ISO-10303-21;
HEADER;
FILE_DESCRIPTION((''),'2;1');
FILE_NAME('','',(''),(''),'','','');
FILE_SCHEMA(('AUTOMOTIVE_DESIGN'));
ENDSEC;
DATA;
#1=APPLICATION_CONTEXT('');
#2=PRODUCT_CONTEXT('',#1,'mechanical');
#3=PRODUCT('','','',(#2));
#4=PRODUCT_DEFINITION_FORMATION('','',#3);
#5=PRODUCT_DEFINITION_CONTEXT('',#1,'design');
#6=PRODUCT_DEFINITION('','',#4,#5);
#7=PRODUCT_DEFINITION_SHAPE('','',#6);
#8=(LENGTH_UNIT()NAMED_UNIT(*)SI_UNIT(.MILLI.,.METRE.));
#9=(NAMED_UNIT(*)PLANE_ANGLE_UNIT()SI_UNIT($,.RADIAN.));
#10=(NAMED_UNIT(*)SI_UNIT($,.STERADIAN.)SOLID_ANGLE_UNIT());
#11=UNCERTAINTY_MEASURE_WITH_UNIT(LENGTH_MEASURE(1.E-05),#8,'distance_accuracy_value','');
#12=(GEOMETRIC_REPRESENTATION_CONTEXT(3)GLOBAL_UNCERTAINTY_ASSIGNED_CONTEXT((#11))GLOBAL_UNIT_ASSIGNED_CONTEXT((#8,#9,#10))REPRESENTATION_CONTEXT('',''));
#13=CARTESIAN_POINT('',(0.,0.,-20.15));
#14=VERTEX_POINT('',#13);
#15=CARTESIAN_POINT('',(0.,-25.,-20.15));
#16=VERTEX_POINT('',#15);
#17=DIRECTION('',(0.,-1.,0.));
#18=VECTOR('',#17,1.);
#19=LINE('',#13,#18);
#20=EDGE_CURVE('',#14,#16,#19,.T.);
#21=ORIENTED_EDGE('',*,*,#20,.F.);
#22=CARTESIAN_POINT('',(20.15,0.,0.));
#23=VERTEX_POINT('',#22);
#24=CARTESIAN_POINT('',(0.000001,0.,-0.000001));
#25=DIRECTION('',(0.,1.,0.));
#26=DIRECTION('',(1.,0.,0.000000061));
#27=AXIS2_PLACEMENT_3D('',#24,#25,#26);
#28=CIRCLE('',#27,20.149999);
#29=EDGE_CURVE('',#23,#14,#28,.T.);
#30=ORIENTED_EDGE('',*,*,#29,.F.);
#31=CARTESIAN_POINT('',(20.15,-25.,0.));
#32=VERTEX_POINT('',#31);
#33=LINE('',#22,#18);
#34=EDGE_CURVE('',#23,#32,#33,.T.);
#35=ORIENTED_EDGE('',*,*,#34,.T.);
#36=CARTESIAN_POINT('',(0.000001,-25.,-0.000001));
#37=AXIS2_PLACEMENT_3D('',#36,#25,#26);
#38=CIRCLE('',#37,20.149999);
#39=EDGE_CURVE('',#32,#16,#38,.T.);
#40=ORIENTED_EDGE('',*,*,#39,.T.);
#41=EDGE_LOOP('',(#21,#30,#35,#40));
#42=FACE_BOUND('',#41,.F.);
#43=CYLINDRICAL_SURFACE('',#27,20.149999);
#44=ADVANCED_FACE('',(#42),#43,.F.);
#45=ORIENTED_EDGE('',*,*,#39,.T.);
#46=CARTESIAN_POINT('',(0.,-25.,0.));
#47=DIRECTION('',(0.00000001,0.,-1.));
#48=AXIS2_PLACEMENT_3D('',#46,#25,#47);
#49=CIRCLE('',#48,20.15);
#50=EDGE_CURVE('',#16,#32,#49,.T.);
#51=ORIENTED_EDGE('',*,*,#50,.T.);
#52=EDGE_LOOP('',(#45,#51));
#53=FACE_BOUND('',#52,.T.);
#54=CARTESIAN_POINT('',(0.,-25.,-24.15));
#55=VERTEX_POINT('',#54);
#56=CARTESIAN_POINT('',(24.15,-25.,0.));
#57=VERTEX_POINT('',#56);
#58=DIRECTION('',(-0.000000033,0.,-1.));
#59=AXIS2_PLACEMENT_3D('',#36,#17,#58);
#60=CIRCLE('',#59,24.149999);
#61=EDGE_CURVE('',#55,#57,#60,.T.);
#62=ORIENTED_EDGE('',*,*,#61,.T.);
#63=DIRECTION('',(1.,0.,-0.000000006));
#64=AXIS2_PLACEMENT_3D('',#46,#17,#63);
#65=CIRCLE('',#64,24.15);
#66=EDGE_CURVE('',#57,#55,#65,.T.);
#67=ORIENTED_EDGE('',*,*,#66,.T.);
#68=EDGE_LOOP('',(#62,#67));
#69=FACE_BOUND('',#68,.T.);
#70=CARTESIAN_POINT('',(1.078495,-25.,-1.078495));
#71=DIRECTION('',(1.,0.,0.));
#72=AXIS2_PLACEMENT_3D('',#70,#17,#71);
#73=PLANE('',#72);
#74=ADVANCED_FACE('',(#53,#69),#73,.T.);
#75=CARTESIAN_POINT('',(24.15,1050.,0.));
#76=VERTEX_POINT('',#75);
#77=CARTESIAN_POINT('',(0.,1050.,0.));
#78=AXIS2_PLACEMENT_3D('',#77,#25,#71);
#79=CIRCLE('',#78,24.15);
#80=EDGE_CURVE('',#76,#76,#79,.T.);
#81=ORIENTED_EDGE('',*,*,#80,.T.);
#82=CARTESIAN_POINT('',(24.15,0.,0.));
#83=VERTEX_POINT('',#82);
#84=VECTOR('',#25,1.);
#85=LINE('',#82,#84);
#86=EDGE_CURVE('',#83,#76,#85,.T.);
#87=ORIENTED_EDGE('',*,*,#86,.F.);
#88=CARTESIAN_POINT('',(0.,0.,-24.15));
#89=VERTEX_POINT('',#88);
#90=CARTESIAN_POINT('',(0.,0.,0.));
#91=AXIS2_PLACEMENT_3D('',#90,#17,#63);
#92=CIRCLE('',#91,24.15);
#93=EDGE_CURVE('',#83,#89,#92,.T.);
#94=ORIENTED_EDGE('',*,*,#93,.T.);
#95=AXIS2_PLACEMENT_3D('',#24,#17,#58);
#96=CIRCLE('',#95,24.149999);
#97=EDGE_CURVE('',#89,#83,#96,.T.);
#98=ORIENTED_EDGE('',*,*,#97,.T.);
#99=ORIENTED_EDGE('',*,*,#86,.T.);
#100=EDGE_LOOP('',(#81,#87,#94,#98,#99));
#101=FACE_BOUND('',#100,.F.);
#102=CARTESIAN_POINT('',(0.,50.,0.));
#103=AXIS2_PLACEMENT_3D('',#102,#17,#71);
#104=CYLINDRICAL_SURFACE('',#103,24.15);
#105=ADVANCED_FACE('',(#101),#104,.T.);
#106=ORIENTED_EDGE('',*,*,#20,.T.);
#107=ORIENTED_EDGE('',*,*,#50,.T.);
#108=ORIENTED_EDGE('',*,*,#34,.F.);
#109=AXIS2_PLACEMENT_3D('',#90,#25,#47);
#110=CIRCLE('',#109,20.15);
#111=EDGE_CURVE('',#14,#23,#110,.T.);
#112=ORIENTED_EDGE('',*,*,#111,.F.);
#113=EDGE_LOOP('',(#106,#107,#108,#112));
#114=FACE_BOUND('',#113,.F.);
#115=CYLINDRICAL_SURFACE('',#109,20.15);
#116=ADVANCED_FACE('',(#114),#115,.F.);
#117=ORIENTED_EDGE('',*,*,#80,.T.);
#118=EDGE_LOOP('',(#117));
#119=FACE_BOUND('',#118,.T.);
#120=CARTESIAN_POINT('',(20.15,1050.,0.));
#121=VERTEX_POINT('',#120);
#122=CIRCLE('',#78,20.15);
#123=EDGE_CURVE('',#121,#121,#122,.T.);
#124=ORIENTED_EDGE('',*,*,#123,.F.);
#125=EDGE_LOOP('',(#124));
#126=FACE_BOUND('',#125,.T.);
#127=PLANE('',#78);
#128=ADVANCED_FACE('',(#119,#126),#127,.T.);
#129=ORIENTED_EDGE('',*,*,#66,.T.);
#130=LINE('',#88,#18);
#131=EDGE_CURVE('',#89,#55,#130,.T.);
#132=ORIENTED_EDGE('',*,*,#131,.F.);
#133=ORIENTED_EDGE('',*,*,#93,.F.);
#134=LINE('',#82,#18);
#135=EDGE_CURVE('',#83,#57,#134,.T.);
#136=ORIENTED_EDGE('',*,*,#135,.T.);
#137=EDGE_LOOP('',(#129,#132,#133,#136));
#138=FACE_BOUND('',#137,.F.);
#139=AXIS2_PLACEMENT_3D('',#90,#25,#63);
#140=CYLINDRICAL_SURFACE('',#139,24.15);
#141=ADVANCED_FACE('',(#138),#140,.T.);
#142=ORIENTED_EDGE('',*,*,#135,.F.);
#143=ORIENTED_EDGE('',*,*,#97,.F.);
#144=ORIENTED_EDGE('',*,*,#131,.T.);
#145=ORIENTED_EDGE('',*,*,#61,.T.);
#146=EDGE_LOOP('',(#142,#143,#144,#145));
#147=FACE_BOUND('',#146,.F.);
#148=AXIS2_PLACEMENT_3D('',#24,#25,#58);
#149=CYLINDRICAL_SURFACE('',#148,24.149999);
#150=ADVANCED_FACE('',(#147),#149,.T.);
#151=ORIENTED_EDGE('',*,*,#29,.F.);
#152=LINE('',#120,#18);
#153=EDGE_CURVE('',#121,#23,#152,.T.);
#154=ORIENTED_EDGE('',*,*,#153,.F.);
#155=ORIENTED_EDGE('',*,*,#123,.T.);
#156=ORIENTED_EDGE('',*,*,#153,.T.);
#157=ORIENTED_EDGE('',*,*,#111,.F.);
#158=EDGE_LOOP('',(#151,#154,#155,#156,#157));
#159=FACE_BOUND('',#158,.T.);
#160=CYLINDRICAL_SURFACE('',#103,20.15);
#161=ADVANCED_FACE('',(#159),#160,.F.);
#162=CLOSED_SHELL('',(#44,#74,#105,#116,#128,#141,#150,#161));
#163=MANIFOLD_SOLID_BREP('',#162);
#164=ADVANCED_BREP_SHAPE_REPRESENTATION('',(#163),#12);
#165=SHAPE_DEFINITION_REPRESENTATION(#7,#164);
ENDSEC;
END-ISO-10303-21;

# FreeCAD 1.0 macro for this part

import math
import FreeCAD as App
import Part
import Sketcher

V = App.Vector

doc = App.newDocument("Part")
body = doc.addObject("PartDesign::Body", "Body")

sketch1 = body.newObject("Sketcher::SketchObject", "Sketch")
sketch1.AttachmentSupport = (doc.getObject("XZ_Plane"), [""])
sketch1.MapMode = "FlatFace"
sketch1.addGeometry(Part.ArcOfCircle(Part.Circle(V(0, 0, 0), V(0, 0, 1), 24), math.radians(-90), math.radians(0)), False)
sketch1.addGeometry(Part.ArcOfCircle(Part.Circle(V(0, 0, 0), V(0, 0, 1), 24), math.radians(0), math.radians(270)), False)
sketch1.addGeometry(Part.ArcOfCircle(Part.Circle(V(0, 0, 0), V(0, 0, 1), 20), math.radians(0), math.radians(270)), False)
sketch1.addGeometry(Part.ArcOfCircle(Part.Circle(V(0, 0, 0), V(0, 0, 1), 20), math.radians(-90), math.radians(0)), False)
sketch1.addConstraint(Sketcher.Constraint("Tangent", 0, 1, 1, 2))
sketch1.addConstraint(Sketcher.Constraint("Coincident", 1, 1, 0, 2))
sketch1.addConstraint(Sketcher.Constraint("Tangent", 2, 1, 3, 2))
sketch1.addConstraint(Sketcher.Constraint("Coincident", 3, 1, 2, 2))
sketch1.addConstraint(Sketcher.Constraint("Coincident", 0, 3, -1, 1))
sketch1.addConstraint(Sketcher.Constraint("Coincident", 2, 3, -1, 1))
sketch1.addConstraint(Sketcher.Constraint("PointOnObject", 0, 1, -2))
sketch1.addConstraint(Sketcher.Constraint("PointOnObject", 1, 1, -1))
sketch1.addConstraint(Sketcher.Constraint("PointOnObject", 2, 1, -1))
sketch1.addConstraint(Sketcher.Constraint("PointOnObject", 3, 1, -2))
sketch1.addConstraint(Sketcher.Constraint("Radius", 0, 24.149999))
sketch1.addConstraint(Sketcher.Constraint("Radius", 2, 20.15))
pad1 = body.newObject("PartDesign::Pad", "Pad")
pad1.Profile = sketch1
pad1.Length = 25

sketch2 = body.newObject("Sketcher::SketchObject", "Sketch001")
sketch2.AttachmentSupport = (doc.getObject("XZ_Plane"), [""])
sketch2.MapMode = "FlatFace"
sketch2.addGeometry(Part.Circle(V(0, 0, 0), V(0, 0, 1), 24), False)
sketch2.addGeometry(Part.Circle(V(0, 0, 0), V(0, 0, 1), 20), False)
sketch2.addConstraint(Sketcher.Constraint("Coincident", 0, 3, -1, 1))
sketch2.addConstraint(Sketcher.Constraint("Coincident", 1, 3, -1, 1))
sketch2.addConstraint(Sketcher.Constraint("Diameter", 0, 48.3))
sketch2.addConstraint(Sketcher.Constraint("Diameter", 1, 40.3))
pad2 = body.newObject("PartDesign::Pad", "Pad001")
pad2.Profile = sketch2
pad2.Length = 50
pad2.Reversed = True

sketch3 = body.newObject("Sketcher::SketchObject", "Sketch002")
sketch3.AttachmentSupport = (doc.getObject("XZ_Plane"), [""])
sketch3.MapMode = "FlatFace"
sketch3.AttachmentOffset = App.Placement(V(0, 0, -50), App.Rotation())
sketch3.addGeometry(Part.Circle(V(0, 0, 0), V(0, 0, 1), 24), False)
sketch3.addGeometry(Part.Circle(V(0, 0, 0), V(0, 0, 1), 20), False)
sketch3.addConstraint(Sketcher.Constraint("Coincident", 0, 3, -1, 1))
sketch3.addConstraint(Sketcher.Constraint("Coincident", 1, 3, -1, 1))
sketch3.addConstraint(Sketcher.Constraint("Diameter", 0, 48.3))
sketch3.addConstraint(Sketcher.Constraint("Diameter", 1, 40.3))
pad3 = body.newObject("PartDesign::Pad", "Pad002")
pad3.Profile = sketch3
pad3.Length = 1000
pad3.Reversed = True

doc.recompute()
